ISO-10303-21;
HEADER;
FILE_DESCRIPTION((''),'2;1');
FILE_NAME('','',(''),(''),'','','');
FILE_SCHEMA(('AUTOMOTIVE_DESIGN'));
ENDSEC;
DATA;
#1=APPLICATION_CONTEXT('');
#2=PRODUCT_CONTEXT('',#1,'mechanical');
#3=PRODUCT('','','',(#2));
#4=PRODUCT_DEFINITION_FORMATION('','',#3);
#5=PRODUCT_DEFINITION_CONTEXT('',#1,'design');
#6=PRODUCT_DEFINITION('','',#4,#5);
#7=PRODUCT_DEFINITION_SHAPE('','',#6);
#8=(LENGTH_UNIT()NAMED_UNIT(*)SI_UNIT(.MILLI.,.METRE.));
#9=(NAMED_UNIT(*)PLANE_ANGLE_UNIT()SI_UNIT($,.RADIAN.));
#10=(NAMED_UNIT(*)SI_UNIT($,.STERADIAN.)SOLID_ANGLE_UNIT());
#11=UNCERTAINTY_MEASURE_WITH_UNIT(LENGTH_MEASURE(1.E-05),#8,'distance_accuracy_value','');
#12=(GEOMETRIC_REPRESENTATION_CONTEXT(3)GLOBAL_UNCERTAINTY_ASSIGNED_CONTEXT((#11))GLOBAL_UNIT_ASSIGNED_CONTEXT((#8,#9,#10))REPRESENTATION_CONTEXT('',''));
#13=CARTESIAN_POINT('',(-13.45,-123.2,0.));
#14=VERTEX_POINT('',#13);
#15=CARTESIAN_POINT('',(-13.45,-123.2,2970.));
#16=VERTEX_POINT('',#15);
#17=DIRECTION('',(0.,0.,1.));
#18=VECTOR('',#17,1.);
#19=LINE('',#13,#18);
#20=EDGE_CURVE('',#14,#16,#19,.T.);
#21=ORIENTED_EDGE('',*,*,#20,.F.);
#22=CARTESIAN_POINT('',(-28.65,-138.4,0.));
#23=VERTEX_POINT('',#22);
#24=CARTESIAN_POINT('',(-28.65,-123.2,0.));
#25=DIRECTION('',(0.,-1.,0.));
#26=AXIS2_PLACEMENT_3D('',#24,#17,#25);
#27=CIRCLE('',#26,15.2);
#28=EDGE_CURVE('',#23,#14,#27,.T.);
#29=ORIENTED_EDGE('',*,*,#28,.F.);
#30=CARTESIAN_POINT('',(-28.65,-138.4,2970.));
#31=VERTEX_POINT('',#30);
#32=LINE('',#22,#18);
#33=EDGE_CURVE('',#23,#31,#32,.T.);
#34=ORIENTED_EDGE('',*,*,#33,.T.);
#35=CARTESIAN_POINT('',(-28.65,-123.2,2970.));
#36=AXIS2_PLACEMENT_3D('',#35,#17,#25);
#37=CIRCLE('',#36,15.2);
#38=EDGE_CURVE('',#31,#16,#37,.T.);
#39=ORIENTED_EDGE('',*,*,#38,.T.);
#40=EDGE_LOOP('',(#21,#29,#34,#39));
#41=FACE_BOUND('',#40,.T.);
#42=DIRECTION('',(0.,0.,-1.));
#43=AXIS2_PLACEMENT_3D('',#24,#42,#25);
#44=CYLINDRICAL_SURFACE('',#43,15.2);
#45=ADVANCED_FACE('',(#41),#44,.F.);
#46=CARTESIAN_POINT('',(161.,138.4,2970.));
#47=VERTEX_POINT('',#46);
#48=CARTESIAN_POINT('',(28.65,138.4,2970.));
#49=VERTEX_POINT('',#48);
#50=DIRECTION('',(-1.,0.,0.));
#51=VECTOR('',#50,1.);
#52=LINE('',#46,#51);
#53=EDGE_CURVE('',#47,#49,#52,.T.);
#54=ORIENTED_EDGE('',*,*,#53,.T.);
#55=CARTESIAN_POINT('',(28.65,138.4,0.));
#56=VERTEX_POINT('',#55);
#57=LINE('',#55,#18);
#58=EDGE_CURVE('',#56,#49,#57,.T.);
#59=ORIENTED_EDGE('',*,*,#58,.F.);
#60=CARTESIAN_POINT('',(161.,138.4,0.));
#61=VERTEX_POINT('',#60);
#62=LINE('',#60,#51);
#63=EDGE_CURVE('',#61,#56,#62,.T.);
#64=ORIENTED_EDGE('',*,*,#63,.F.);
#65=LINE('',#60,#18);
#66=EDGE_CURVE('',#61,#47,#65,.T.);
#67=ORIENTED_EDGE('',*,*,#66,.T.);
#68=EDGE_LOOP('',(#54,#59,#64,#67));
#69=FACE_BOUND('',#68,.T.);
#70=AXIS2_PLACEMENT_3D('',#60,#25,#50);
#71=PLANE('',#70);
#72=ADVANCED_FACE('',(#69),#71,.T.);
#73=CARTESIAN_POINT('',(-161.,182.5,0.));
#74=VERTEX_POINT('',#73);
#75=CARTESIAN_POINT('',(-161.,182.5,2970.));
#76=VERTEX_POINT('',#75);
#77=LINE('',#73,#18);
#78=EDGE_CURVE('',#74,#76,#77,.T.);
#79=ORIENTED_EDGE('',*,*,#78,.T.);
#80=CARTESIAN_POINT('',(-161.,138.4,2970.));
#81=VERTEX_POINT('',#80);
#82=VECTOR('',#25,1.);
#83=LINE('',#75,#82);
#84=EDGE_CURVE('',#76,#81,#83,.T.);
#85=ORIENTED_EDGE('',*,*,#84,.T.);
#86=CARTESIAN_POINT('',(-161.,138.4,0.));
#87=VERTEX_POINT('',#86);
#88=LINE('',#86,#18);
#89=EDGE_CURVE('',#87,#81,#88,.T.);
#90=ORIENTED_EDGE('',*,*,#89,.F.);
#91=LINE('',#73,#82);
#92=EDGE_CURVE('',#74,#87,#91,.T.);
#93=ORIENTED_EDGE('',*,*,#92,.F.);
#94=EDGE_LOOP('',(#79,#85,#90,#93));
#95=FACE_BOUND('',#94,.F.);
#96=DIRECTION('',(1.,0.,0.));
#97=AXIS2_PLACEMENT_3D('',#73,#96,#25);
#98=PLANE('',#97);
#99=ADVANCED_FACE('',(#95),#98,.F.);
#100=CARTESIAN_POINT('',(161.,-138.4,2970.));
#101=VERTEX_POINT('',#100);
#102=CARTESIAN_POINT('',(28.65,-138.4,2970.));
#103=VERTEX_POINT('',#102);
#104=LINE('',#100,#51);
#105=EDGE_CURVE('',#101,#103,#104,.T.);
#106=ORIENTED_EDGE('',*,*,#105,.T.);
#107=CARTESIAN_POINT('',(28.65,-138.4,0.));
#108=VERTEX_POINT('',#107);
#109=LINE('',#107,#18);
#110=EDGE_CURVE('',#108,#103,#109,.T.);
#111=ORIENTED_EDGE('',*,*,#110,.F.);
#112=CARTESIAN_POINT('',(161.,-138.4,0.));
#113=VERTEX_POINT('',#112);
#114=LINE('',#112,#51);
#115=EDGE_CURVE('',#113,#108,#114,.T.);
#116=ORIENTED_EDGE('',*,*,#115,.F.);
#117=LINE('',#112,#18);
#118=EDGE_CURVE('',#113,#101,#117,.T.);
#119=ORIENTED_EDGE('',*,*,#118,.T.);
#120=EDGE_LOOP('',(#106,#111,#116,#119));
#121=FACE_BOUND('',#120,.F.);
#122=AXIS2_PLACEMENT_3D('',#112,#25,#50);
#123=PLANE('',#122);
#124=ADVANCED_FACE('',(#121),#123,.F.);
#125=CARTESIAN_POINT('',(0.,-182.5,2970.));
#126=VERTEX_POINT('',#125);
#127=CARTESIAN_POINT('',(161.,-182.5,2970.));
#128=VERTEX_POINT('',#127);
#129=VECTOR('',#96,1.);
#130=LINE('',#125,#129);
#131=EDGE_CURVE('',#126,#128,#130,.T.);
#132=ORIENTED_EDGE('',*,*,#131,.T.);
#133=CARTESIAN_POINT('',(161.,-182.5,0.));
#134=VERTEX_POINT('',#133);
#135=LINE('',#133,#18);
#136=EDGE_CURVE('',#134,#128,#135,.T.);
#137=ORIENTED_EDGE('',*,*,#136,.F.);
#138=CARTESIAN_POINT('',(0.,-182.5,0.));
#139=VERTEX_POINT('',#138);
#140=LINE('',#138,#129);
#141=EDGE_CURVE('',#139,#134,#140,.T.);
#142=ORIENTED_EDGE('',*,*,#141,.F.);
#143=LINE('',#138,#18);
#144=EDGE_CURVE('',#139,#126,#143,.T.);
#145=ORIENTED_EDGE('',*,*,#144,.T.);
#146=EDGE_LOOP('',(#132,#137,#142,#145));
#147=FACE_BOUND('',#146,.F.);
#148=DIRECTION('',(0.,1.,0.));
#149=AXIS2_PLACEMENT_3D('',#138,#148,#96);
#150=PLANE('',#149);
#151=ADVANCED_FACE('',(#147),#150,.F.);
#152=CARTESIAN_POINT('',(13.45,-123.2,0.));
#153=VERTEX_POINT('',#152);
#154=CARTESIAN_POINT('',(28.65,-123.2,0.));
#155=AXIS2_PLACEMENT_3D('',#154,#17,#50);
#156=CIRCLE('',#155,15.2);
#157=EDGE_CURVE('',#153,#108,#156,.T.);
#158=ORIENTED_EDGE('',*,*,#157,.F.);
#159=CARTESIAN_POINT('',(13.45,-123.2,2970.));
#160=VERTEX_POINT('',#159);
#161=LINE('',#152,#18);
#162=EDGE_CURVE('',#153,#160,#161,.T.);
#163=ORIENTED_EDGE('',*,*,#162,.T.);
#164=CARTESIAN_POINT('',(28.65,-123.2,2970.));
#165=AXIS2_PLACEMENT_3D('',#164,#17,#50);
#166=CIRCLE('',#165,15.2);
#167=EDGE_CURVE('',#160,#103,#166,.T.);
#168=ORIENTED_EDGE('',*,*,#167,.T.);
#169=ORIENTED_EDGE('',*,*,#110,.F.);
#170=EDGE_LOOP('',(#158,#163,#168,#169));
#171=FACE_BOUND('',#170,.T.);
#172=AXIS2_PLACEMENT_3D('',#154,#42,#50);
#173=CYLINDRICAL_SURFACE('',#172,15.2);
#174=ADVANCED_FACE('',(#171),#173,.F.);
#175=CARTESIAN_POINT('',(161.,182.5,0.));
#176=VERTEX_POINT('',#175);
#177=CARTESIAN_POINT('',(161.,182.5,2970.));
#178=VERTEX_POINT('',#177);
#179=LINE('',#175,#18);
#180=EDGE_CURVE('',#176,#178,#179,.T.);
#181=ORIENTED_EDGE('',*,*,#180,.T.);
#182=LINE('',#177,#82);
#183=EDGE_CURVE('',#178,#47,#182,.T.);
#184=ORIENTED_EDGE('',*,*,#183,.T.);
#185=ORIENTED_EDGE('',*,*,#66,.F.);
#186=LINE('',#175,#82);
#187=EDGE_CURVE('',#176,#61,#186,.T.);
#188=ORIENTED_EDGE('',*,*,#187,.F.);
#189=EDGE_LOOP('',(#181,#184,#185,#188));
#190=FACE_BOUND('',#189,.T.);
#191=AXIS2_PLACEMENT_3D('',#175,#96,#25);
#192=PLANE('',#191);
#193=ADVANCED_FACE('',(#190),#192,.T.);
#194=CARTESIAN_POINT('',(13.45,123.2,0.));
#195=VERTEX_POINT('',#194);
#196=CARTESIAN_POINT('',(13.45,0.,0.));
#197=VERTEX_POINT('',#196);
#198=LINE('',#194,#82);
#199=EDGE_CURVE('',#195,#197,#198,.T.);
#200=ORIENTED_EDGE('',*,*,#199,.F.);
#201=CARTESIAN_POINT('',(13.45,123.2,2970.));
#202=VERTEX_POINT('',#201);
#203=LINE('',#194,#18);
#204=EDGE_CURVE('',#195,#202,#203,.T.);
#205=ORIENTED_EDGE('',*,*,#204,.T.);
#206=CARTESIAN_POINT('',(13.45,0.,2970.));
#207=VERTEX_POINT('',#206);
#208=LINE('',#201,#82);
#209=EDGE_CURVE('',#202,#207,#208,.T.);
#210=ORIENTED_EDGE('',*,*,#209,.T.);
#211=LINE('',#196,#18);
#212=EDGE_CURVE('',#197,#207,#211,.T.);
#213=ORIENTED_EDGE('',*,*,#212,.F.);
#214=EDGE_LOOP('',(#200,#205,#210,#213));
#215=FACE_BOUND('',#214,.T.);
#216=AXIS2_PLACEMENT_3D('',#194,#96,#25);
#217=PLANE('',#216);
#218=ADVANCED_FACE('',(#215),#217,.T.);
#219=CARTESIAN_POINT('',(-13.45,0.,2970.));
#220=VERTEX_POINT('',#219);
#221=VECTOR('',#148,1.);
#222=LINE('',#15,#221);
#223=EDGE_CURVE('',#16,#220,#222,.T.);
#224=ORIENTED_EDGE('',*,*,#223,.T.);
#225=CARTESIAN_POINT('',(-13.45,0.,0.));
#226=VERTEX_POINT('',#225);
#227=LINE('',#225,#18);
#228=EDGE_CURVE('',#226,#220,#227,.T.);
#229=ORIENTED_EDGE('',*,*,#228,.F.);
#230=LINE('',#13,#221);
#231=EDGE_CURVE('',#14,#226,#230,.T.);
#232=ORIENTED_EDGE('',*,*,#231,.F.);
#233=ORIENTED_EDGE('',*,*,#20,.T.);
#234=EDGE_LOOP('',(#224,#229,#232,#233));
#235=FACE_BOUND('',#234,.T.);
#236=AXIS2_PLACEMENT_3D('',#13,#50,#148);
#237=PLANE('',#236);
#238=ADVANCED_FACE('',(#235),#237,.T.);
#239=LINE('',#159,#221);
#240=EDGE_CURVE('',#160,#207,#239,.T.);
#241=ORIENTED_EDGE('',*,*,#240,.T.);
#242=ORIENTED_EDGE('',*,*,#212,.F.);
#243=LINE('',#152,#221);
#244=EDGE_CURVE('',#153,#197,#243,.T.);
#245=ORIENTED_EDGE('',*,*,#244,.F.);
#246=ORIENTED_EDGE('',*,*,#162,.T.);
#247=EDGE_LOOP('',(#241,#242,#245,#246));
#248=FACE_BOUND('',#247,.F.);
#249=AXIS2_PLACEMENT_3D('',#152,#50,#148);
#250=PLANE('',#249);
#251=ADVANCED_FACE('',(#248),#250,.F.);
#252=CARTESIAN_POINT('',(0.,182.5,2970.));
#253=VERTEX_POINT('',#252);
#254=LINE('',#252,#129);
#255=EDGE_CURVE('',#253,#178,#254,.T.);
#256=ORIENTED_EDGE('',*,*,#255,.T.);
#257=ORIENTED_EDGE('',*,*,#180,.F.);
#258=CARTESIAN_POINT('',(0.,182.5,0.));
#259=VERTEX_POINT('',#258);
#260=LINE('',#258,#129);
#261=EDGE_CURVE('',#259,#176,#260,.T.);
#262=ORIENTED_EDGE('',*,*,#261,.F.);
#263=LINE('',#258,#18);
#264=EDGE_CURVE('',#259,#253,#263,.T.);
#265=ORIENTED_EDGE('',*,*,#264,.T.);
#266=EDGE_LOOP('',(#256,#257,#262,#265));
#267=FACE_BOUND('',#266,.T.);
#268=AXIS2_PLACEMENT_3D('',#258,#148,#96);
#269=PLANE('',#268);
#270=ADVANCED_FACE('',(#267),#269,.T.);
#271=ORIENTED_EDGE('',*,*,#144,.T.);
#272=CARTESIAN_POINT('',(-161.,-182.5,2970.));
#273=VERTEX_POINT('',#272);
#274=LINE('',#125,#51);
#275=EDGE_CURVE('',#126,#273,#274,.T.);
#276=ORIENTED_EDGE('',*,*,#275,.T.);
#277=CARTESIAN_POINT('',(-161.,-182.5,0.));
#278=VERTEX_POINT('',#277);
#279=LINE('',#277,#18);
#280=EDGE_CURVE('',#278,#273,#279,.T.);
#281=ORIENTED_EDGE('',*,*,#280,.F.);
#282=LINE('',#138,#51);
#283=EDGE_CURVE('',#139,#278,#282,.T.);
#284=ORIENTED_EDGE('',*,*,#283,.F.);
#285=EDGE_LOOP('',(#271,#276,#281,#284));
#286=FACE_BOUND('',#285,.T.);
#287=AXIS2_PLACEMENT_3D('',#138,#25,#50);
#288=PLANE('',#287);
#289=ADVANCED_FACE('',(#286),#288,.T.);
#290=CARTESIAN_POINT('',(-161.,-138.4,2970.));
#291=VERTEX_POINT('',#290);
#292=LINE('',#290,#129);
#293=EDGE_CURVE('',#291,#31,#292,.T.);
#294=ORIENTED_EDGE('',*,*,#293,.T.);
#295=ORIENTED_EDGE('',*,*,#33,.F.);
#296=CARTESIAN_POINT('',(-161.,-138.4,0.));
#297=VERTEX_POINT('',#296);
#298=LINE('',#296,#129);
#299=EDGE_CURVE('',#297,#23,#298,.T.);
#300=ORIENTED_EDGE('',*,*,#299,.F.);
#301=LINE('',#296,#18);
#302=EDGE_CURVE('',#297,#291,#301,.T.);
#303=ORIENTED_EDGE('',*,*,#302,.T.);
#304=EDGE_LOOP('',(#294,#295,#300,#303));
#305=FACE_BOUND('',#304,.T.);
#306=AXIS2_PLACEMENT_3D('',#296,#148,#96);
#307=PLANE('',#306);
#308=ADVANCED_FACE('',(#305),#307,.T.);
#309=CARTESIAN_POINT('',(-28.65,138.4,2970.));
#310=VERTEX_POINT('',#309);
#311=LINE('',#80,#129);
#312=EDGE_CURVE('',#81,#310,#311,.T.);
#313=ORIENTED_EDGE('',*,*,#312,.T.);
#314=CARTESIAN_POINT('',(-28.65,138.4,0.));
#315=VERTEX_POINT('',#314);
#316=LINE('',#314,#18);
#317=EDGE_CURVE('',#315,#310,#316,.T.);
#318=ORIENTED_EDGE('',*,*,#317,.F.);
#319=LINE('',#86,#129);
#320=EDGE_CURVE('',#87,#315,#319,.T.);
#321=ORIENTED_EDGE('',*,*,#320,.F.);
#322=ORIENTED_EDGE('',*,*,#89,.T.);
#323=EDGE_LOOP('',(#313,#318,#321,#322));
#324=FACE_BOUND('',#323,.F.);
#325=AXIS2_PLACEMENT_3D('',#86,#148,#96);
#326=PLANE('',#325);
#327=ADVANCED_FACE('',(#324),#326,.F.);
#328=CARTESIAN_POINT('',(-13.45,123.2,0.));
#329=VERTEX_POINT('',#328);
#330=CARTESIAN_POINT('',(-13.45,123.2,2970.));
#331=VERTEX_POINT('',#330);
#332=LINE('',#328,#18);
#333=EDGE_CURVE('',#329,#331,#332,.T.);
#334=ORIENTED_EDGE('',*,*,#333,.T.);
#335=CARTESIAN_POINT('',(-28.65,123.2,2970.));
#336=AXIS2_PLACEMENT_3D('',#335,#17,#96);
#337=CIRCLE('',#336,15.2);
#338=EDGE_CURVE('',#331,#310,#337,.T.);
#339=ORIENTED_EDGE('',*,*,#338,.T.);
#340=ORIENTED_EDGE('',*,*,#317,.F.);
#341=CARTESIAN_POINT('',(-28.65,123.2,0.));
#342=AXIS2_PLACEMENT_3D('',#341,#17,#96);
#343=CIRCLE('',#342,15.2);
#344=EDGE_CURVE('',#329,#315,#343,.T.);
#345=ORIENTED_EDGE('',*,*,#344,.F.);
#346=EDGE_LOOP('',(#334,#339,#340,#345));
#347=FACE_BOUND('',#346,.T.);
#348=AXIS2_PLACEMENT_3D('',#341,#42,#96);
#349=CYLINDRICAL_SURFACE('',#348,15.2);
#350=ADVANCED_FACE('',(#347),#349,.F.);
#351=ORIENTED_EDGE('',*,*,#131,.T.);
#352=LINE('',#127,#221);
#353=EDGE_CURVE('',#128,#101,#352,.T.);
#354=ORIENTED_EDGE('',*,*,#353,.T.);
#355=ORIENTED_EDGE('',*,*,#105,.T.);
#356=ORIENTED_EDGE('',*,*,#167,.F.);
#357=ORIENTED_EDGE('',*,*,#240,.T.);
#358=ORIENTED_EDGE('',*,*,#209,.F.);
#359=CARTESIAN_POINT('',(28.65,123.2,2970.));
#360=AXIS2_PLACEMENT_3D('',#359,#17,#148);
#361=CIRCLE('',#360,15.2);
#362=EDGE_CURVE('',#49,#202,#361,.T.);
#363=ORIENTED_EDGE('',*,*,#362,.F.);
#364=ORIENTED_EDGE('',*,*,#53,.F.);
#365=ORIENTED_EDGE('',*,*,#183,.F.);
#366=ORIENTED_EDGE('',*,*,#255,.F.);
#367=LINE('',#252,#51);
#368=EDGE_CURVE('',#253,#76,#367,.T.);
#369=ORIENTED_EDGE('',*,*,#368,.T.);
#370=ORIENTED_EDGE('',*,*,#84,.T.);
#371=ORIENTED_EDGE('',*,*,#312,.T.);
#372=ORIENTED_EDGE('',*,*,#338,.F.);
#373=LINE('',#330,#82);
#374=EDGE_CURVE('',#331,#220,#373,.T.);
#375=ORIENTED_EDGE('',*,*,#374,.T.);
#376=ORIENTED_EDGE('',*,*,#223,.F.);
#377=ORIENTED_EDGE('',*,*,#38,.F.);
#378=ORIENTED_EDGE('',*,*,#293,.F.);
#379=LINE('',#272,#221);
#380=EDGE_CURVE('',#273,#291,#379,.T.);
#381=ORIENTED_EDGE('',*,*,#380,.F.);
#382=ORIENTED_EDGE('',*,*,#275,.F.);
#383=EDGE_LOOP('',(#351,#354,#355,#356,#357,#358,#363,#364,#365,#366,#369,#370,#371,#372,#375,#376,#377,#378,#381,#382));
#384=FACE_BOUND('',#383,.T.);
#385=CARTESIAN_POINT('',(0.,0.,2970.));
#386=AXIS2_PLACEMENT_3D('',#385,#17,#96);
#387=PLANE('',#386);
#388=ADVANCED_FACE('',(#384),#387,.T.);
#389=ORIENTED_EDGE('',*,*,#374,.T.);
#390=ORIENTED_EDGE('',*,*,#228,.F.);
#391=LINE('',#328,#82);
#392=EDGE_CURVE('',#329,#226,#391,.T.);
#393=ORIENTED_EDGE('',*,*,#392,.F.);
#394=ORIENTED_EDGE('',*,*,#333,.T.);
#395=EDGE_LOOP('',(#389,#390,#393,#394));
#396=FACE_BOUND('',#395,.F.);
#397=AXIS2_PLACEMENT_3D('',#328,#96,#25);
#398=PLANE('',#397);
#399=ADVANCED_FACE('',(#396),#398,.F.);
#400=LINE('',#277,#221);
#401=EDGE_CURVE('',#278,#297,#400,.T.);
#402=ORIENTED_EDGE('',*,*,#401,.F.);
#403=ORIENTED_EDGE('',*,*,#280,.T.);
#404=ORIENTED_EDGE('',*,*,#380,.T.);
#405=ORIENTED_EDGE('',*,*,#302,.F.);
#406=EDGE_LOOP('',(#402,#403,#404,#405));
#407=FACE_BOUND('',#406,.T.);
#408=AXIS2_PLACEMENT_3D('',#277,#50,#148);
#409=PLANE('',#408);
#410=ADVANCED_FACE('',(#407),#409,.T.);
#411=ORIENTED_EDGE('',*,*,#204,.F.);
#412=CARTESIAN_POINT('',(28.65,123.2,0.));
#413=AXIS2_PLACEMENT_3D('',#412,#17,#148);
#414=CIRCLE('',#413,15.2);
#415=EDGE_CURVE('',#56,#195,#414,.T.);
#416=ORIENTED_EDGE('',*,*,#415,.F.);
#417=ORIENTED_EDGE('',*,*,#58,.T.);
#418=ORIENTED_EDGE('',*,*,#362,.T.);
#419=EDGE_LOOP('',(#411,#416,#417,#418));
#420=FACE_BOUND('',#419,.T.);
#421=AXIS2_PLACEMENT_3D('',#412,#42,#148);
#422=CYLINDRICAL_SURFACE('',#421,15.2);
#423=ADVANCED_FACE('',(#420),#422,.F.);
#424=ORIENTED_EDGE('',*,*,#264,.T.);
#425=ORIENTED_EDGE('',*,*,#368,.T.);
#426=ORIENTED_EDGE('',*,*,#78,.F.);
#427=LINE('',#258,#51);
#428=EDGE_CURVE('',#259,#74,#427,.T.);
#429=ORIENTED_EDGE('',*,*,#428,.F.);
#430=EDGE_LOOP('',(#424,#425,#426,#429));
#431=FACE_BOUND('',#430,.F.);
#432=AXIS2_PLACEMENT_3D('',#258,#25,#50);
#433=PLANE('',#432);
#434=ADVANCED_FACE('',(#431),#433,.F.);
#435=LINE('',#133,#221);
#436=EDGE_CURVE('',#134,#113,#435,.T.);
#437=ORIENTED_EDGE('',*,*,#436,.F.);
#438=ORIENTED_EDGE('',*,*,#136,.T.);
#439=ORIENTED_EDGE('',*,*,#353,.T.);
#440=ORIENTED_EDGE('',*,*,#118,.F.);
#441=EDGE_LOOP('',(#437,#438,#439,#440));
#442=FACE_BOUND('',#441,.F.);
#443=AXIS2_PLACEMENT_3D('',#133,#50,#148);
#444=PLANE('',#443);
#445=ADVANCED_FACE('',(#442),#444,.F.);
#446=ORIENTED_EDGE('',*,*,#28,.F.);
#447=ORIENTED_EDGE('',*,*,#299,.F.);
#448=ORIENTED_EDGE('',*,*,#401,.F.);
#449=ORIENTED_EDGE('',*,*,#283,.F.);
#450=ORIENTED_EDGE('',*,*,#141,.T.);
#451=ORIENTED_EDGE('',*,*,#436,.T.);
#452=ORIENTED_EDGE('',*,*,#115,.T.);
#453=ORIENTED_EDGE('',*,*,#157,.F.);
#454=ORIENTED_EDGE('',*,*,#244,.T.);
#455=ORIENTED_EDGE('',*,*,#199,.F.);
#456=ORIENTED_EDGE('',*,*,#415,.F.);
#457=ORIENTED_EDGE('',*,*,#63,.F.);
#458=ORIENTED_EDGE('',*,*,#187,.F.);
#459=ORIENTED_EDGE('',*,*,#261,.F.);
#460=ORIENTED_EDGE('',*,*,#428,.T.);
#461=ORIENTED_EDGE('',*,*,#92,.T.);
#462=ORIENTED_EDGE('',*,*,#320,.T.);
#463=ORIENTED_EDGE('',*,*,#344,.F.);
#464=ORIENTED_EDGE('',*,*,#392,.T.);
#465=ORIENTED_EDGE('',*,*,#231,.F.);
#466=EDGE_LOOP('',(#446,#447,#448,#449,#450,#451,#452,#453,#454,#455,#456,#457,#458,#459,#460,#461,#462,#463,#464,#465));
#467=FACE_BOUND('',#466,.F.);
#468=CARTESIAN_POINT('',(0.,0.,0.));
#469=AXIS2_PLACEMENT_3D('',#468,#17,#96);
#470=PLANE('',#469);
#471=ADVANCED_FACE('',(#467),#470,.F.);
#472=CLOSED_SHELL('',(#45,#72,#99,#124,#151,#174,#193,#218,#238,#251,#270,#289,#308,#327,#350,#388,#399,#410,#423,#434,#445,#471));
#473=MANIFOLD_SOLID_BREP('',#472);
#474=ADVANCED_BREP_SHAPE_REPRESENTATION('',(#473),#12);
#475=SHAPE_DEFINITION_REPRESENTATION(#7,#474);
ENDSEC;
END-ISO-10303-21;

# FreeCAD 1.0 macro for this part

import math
import FreeCAD as App
import Part
import Sketcher

V = App.Vector

doc = App.newDocument("Part")
params = doc.addObject("Spreadsheet::Sheet", "Params")
for row, (alias, value) in enumerate([
    ("sketch1_radius", "15.2 mm"),
    ("sketch1_height", "44.1 mm"),
    ("pad1_length", "2970 mm"),
], start=1):
    params.set(f"A{row}", alias)
    params.set(f"B{row}", "=" + value)
    params.setAlias(f"B{row}", alias)

body = doc.addObject("PartDesign::Body", "Body")

sketch1 = body.newObject("Sketcher::SketchObject", "Sketch")
sketch1.AttachmentSupport = (doc.getObject("XY_Plane"), [""])
sketch1.MapMode = "FlatFace"
sketch1.addGeometry([
    Part.LineSegment(V(-161, -138, 0), V(-161, -182, 0)),
    Part.LineSegment(V(-161, -182, 0), V(161, -182, 0)),
    Part.LineSegment(V(161, -182, 0), V(161, -138, 0)),
    Part.LineSegment(V(161, -138, 0), V(29, -138, 0)),
    Part.ArcOfCircle(Part.Circle(V(29, -123, 0), V(0, 0, 1), 15), math.radians(180), math.radians(270)),
    Part.LineSegment(V(13, -123, 0), V(13, 123, 0)),
    Part.ArcOfCircle(Part.Circle(V(29, 123, 0), V(0, 0, 1), 15), math.radians(90), math.radians(180)),
    Part.LineSegment(V(29, 138, 0), V(161, 138, 0)),
    Part.LineSegment(V(161, 138, 0), V(161, 182, 0)),
    Part.LineSegment(V(161, 182, 0), V(-161, 182, 0)),
    Part.LineSegment(V(-161, 182, 0), V(-161, 138, 0)),
    Part.LineSegment(V(-161, 138, 0), V(-29, 138, 0)),
    Part.ArcOfCircle(Part.Circle(V(-29, 123, 0), V(0, 0, 1), 15), math.radians(0), math.radians(90)),
    Part.LineSegment(V(-13, 123, 0), V(-13, -123, 0)),
    Part.ArcOfCircle(Part.Circle(V(-29, -123, 0), V(0, 0, 1), 15), math.radians(-90), math.radians(0)),
    Part.LineSegment(V(-29, -138, 0), V(-161, -138, 0)),
], False)
sketch1.addConstraint([
    Sketcher.Constraint("Coincident", 0, 2, 1, 1),
    Sketcher.Constraint("Coincident", 1, 2, 2, 1),
    Sketcher.Constraint("Coincident", 2, 2, 3, 1),
    Sketcher.Constraint("Tangent", 3, 2, 4, 2),
    Sketcher.Constraint("Tangent", 4, 1, 5, 1),
    Sketcher.Constraint("Tangent", 5, 2, 6, 2),
    Sketcher.Constraint("Tangent", 6, 1, 7, 1),
    Sketcher.Constraint("Coincident", 7, 2, 8, 1),
    Sketcher.Constraint("Coincident", 8, 2, 9, 1),
    Sketcher.Constraint("Coincident", 9, 2, 10, 1),
    Sketcher.Constraint("Coincident", 10, 2, 11, 1),
    Sketcher.Constraint("Tangent", 11, 2, 12, 2),
    Sketcher.Constraint("Tangent", 12, 1, 13, 1),
    Sketcher.Constraint("Tangent", 13, 2, 14, 2),
    Sketcher.Constraint("Tangent", 14, 1, 15, 1),
    Sketcher.Constraint("Coincident", 15, 2, 0, 1),
    Sketcher.Constraint("Vertical", 0),
    Sketcher.Constraint("Horizontal", 1),
    Sketcher.Constraint("Vertical", 2),
    Sketcher.Constraint("Horizontal", 3),
    Sketcher.Constraint("Vertical", 5),
    Sketcher.Constraint("Horizontal", 7),
    Sketcher.Constraint("Vertical", 8),
    Sketcher.Constraint("Horizontal", 9),
    Sketcher.Constraint("Vertical", 10),
    Sketcher.Constraint("Horizontal", 11),
    Sketcher.Constraint("Vertical", 13),
    Sketcher.Constraint("Horizontal", 15),
    Sketcher.Constraint("Equal", 4, 6),
    Sketcher.Constraint("Equal", 6, 12),
    Sketcher.Constraint("Equal", 12, 14),
    Sketcher.Constraint("Symmetric", 4, 3, 12, 3, -1, 1),
    Sketcher.Constraint("Symmetric", 0, 2, 8, 2, -1, 1),
    Sketcher.Constraint("Symmetric", 7, 2, 10, 2, -2),
    Sketcher.Constraint("Symmetric", 2, 2, 15, 2, -2),
    Sketcher.Constraint("Radius", 4, 15.2),
    Sketcher.Constraint("DistanceY", 0, 2, 0, 1, 44.1),
    Sketcher.Constraint("DistanceX", 0, 2, -1, 1, 161.0),
    Sketcher.Constraint("DistanceY", 0, 2, -1, 1, 182.5),
    Sketcher.Constraint("DistanceX", -1, 1, 4, 1, 13.45),
])
sketch1.setExpression("Constraints[35]", "Params.sketch1_radius")
sketch1.setExpression("Constraints[36]", "Params.sketch1_height")
pad1 = body.newObject("PartDesign::Pad", "Pad")
pad1.Profile = sketch1
pad1.setExpression("Length", "Params.pad1_length")

doc.recompute()
